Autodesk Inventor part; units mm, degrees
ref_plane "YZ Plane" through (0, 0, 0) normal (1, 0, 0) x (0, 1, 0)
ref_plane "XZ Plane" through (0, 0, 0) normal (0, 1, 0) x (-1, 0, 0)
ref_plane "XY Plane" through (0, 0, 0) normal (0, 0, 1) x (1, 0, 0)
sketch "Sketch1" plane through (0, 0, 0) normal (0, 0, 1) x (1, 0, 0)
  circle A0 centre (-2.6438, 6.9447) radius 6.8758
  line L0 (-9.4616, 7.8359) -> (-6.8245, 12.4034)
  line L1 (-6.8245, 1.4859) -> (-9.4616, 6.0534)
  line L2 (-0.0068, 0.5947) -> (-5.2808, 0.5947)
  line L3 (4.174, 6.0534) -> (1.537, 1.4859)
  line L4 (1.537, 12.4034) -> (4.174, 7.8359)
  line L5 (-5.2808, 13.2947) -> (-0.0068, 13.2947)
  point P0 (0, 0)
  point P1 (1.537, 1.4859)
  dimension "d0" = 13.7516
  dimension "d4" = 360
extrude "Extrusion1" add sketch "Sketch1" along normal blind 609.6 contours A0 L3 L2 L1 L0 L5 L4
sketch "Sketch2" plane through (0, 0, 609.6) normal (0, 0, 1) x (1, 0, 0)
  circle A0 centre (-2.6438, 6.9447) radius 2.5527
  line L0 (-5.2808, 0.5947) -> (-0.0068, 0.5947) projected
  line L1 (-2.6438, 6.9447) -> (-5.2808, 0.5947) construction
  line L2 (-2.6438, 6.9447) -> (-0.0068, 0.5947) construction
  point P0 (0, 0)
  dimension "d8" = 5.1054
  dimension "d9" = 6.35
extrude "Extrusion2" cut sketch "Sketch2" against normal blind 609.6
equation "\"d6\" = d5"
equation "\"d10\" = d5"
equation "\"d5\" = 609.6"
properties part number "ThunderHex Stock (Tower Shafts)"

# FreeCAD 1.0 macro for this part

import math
import FreeCAD as App
import Part
import Sketcher
Q = App.Units.Quantity

doc = App.newDocument("Part")
body = doc.addObject("PartDesign::Body", "Body")

sketch1 = body.newObject("Sketcher::SketchObject", "Sketch")
sketch1.AttachmentSupport = (doc.getObject("XY_Plane"), [""])
sketch1.MapMode = "FlatFace"
sketch1.addGeometry(Part.ArcOfCircle(Part.Circle(App.Vector(-2.6, 6.9, 0), App.Vector(0, 0, 1), 6.9), math.radians(-7.45), math.radians(7.45)), False)
sketch1.addGeometry(Part.LineSegment(App.Vector(4.2, 7.8, 0), App.Vector(1.5, 12.4, 0)), False)
sketch1.addGeometry(Part.ArcOfCircle(Part.Circle(App.Vector(-2.6, 6.9, 0), App.Vector(0, 0, 1), 6.9), math.radians(52.55), math.radians(67.45)), False)
sketch1.addGeometry(Part.LineSegment(App.Vector(0, 13.3, 0), App.Vector(-5.3, 13.3, 0)), False)
sketch1.addGeometry(Part.ArcOfCircle(Part.Circle(App.Vector(-2.6, 6.9, 0), App.Vector(0, 0, 1), 6.9), math.radians(112.55), math.radians(127.45)), False)
sketch1.addGeometry(Part.LineSegment(App.Vector(-6.8, 12.4, 0), App.Vector(-9.5, 7.8, 0)), False)
sketch1.addGeometry(Part.ArcOfCircle(Part.Circle(App.Vector(-2.6, 6.9, 0), App.Vector(0, 0, 1), 6.9), math.radians(172.55), math.radians(187.45)), False)
sketch1.addGeometry(Part.LineSegment(App.Vector(-9.5, 6.1, 0), App.Vector(-6.8, 1.5, 0)), False)
sketch1.addGeometry(Part.ArcOfCircle(Part.Circle(App.Vector(-2.6, 6.9, 0), App.Vector(0, 0, 1), 6.9), math.radians(-127.45), math.radians(-112.55)), False)
sketch1.addGeometry(Part.LineSegment(App.Vector(-5.3, 0.6, 0), App.Vector(0, 0.6, 0)), False)
sketch1.addGeometry(Part.ArcOfCircle(Part.Circle(App.Vector(-2.6, 6.9, 0), App.Vector(0, 0, 1), 6.9), math.radians(-67.45), math.radians(-52.55)), False)
sketch1.addGeometry(Part.LineSegment(App.Vector(1.5, 1.5, 0), App.Vector(4.2, 6.1, 0)), False)
sketch1.addConstraint(Sketcher.Constraint("Coincident", 0, 2, 1, 1))
sketch1.addConstraint(Sketcher.Constraint("Coincident", 1, 2, 2, 1))
sketch1.addConstraint(Sketcher.Constraint("Coincident", 2, 2, 3, 1))
sketch1.addConstraint(Sketcher.Constraint("Coincident", 3, 2, 4, 1))
sketch1.addConstraint(Sketcher.Constraint("Coincident", 4, 2, 5, 1))
sketch1.addConstraint(Sketcher.Constraint("Coincident", 5, 2, 6, 1))
sketch1.addConstraint(Sketcher.Constraint("Coincident", 6, 2, 7, 1))
sketch1.addConstraint(Sketcher.Constraint("Coincident", 7, 2, 8, 1))
sketch1.addConstraint(Sketcher.Constraint("Coincident", 8, 2, 9, 1))
sketch1.addConstraint(Sketcher.Constraint("Coincident", 9, 2, 10, 1))
sketch1.addConstraint(Sketcher.Constraint("Coincident", 10, 2, 11, 1))
sketch1.addConstraint(Sketcher.Constraint("Coincident", 11, 2, 0, 1))
sketch1.addConstraint(Sketcher.Constraint("Horizontal", 3))
sketch1.addConstraint(Sketcher.Constraint("Horizontal", 9))
sketch1.addConstraint(Sketcher.Constraint("Coincident", 2, 3, 0, 3))
sketch1.addConstraint(Sketcher.Constraint("Coincident", 4, 3, 0, 3))
sketch1.addConstraint(Sketcher.Constraint("Coincident", 6, 3, 0, 3))
sketch1.addConstraint(Sketcher.Constraint("Coincident", 8, 3, 0, 3))
sketch1.addConstraint(Sketcher.Constraint("Coincident", 10, 3, 0, 3))
sketch1.addConstraint(Sketcher.Constraint("Equal", 0, 2))
sketch1.addConstraint(Sketcher.Constraint("Equal", 2, 4))
sketch1.addConstraint(Sketcher.Constraint("Equal", 4, 6))
sketch1.addConstraint(Sketcher.Constraint("Equal", 6, 8))
sketch1.addConstraint(Sketcher.Constraint("Equal", 8, 10))
sketch1.addConstraint(Sketcher.Constraint("Parallel", 1, 7))
sketch1.addConstraint(Sketcher.Constraint("Parallel", 5, 11))
sketch1.addConstraint(Sketcher.Constraint("Horizontal", 1, 2, 4, 2))
sketch1.addConstraint(Sketcher.Constraint("Horizontal", 0, 2, 5, 2))
sketch1.addConstraint(Sketcher.Constraint("Horizontal", 7, 2, 10, 2))
sketch1.addConstraint(Sketcher.Constraint("Vertical", 5, 2, 6, 2))
sketch1.addConstraint(Sketcher.Constraint("Vertical", 3, 2, 8, 2))
sketch1.addConstraint(Sketcher.Constraint("Radius", 0, Q("0.2707 in")))
sketch1.addConstraint(Sketcher.Constraint("Angle", 1, Q("119.9996 deg")))
sketch1.addConstraint(Sketcher.Constraint("DistanceY", 0, 3, 2, 2, Q("0.25 in")))
sketch1.addConstraint(Sketcher.Constraint("DistanceY", 10, 2, 0, 2, Q("0.25 in")))
sketch1.addConstraint(Sketcher.Constraint("DistanceY", -1, 1, 0, 2, Q("0.3085 in")))
sketch1.addConstraint(Sketcher.Constraint("DistanceX", -1, 1, 1, 2, Q("0.0605 in")))
pad1 = body.newObject("PartDesign::Pad", "Pad")
pad1.Profile = sketch1
pad1.Length = Q("24 in")

sketch2 = body.newObject("Sketcher::SketchObject", "Sketch001")
sketch2.AttachmentSupport = (doc.getObject("XY_Plane"), [""])
sketch2.MapMode = "FlatFace"
sketch2.AttachmentOffset = App.Placement(App.Vector(0, 0, 24 * 25.4), App.Rotation())
sketch2.addGeometry(Part.Circle(App.Vector(-2.6, 6.9, 0), App.Vector(0, 0, 1), 2.6), False)
sketch2.addConstraint(Sketcher.Constraint("Diameter", 0, Q("0.201 in")))
sketch2.addConstraint(Sketcher.Constraint("DistanceX", 0, 3, -1, 1, Q("2.6438 mm")))
sketch2.addConstraint(Sketcher.Constraint("DistanceY", -1, 1, 0, 3, Q("6.9447 mm")))
pocket1 = body.newObject("PartDesign::Pocket", "Pocket")
pocket1.Profile = sketch2
pocket1.Length = Q("24 in")

doc.recompute()
